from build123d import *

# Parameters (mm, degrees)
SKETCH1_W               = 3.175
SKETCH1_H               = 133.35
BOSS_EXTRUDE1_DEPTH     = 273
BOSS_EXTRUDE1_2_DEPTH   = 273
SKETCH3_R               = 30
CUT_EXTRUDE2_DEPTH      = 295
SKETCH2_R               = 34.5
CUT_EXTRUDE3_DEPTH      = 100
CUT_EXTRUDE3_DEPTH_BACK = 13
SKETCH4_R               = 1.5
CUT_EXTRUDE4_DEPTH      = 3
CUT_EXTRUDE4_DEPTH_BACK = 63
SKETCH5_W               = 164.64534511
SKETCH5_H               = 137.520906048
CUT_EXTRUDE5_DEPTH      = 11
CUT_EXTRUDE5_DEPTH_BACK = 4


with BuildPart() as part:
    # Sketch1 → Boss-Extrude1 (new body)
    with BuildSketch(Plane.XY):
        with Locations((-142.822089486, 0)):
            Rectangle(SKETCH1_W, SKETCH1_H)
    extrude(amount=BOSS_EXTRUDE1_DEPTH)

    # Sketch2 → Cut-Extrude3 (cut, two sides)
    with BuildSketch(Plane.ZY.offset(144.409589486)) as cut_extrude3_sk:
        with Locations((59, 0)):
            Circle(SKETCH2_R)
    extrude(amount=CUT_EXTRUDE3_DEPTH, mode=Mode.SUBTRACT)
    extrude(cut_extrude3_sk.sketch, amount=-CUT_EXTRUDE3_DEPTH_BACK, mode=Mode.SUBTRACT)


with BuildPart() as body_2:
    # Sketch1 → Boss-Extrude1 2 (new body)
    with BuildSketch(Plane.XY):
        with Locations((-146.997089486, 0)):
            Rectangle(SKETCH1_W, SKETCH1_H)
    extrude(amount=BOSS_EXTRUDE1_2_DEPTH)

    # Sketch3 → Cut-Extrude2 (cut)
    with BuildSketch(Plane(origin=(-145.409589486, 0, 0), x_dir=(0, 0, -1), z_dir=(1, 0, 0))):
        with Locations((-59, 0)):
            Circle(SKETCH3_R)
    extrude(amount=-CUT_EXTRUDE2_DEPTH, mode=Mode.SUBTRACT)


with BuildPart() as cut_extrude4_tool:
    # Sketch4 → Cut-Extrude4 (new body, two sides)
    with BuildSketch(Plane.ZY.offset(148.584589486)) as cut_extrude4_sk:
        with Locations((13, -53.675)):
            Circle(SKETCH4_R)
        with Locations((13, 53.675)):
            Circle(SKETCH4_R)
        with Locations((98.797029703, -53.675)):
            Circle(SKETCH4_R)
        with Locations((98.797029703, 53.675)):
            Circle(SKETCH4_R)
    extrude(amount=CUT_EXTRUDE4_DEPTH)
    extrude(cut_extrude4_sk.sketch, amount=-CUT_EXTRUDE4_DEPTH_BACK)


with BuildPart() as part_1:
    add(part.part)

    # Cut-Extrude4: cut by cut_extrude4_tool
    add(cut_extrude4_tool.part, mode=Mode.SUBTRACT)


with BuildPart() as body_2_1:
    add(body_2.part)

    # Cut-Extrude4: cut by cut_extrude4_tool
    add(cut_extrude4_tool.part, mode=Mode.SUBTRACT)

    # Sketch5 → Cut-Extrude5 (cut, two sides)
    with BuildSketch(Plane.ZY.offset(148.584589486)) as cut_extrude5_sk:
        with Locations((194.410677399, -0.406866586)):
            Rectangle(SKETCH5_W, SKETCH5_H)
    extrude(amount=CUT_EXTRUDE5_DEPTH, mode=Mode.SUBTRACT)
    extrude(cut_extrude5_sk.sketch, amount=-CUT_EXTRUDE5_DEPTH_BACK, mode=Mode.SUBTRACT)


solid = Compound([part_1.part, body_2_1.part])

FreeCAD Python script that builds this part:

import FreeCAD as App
import Part
import Sketcher
Q = App.Units.Quantity


def add_polygon(sketch, points):
    """Adds a closed chain of lines whose ends are joined by coincident constraints."""
    first, n = sketch.GeometryCount, len(points)
    for a, b in zip(points, points[1:] + points[:1]):
        sketch.addGeometry(Part.LineSegment(App.Vector(*a, 0), App.Vector(*b, 0)), False)
    for i in range(n):
        sketch.addConstraint(Sketcher.Constraint("Coincident", first + i, 2, first + (i + 1) % n, 1))

doc = App.newDocument("Part")
body = doc.addObject("PartDesign::Body", "Body")

# Sketch on XY plane
sketch1 = doc.addObject("Sketcher::SketchObject", "Sketch")
body.addObject(sketch1)
sketch1.AttachmentSupport = (doc.XY_Plane, [""])
sketch1.MapMode = "FlatFace"
add_polygon(sketch1, [(-144.4, 66.7), (-144.4, -66.7), (-141.2, -66.7), (-141.2, 66.7)])  # lines 0-3
sketch1.addConstraint(Sketcher.Constraint("Vertical", 0))
sketch1.addConstraint(Sketcher.Constraint("Horizontal", 1))
sketch1.addConstraint(Sketcher.Constraint("Vertical", 2))
sketch1.addConstraint(Sketcher.Constraint("Horizontal", 3))
sketch1.addConstraint(Sketcher.Constraint("DistanceY", 0, 2, 0, 1, Q("133.35 mm")))
sketch1.addConstraint(Sketcher.Constraint("DistanceX", 1, 1, 1, 2, Q("3.175 mm")))
sketch1.addConstraint(Sketcher.Constraint("DistanceY", 0, 2, -1, 1, Q("66.675 mm")))
sketch1.addConstraint(Sketcher.Constraint("DistanceX", 0, 2, -1, 1, Q("144.409589 mm")))
pad1 = doc.addObject("PartDesign::Pad", "Pad")
body.addObject(pad1)
pad1.Profile = sketch1
pad1.Length = 273

# Sketch on YZ plane
sketch2 = doc.addObject("Sketcher::SketchObject", "Sketch001")
body.addObject(sketch2)
sketch2.AttachmentSupport = (doc.YZ_Plane, [""])
sketch2.MapMode = "FlatFace"
sketch2.AttachmentOffset = App.Placement(App.Vector(0, 0, -144.409589), App.Rotation())
sketch2.addGeometry(Part.Circle(App.Vector(0, 59, 0), App.Vector(0, 0, 1), 34), False)
sketch2.addConstraint(Sketcher.Constraint("PointOnObject", 0, 3, -2))
sketch2.addConstraint(Sketcher.Constraint("Diameter", 0, Q("69 mm")))
sketch2.addConstraint(Sketcher.Constraint("DistanceY", -1, 1, 0, 3, Q("59 mm")))
pocket1 = doc.addObject("PartDesign::Pocket", "Pocket")
body.addObject(pocket1)
pocket1.Profile = sketch2
pocket1.Type = "ThroughAll"
pocket1.Midplane = True
body2 = doc.addObject("PartDesign::Body", "Body001")

# Sketch on XY plane
sketch3 = doc.addObject("Sketcher::SketchObject", "Sketch002")
body2.addObject(sketch3)
sketch3.AttachmentSupport = (doc.getObject("XY_Plane001"), [""])
sketch3.MapMode = "FlatFace"
add_polygon(sketch3, [(-148.6, 66.7), (-148.6, -66.7), (-145.4, -66.7), (-145.4, 66.7)])  # lines 0-3
sketch3.addConstraint(Sketcher.Constraint("Vertical", 0))
sketch3.addConstraint(Sketcher.Constraint("Horizontal", 1))
sketch3.addConstraint(Sketcher.Constraint("Vertical", 2))
sketch3.addConstraint(Sketcher.Constraint("Horizontal", 3))
sketch3.addConstraint(Sketcher.Constraint("DistanceY", 0, 2, 0, 1, Q("133.35 mm")))
sketch3.addConstraint(Sketcher.Constraint("DistanceX", 1, 1, 1, 2, Q("3.175 mm")))
sketch3.addConstraint(Sketcher.Constraint("DistanceY", 0, 2, -1, 1, Q("66.675 mm")))
sketch3.addConstraint(Sketcher.Constraint("DistanceX", 0, 2, -1, 1, Q("148.584589 mm")))
pad2 = doc.addObject("PartDesign::Pad", "Pad001")
body2.addObject(pad2)
pad2.Profile = sketch3
pad2.Length = 273

# Sketch on YZ plane
sketch4 = doc.addObject("Sketcher::SketchObject", "Sketch003")
body2.addObject(sketch4)
sketch4.AttachmentSupport = (doc.getObject("YZ_Plane001"), [""])
sketch4.MapMode = "FlatFace"
sketch4.AttachmentOffset = App.Placement(App.Vector(0, 0, -145.409589), App.Rotation())
sketch4.addGeometry(Part.Circle(App.Vector(0, 59, 0), App.Vector(0, 0, 1), 30), False)
sketch4.addConstraint(Sketcher.Constraint("PointOnObject", 0, 3, -2))
sketch4.addConstraint(Sketcher.Constraint("Diameter", 0, Q("60 mm")))
sketch4.addConstraint(Sketcher.Constraint("DistanceY", -1, 1, 0, 3, Q("59 mm")))
pocket2 = doc.addObject("PartDesign::Pocket", "Pocket001")
body2.addObject(pocket2)
pocket2.Profile = sketch4
pocket2.Length = 295
body3 = doc.addObject("PartDesign::Body", "Body002")
body3.AllowCompound = True

# Sketch on YZ plane
sketch5 = doc.addObject("Sketcher::SketchObject", "Sketch004")
body3.addObject(sketch5)
sketch5.AttachmentSupport = (doc.getObject("YZ_Plane002"), [""])
sketch5.MapMode = "FlatFace"
sketch5.AttachmentOffset = App.Placement(App.Vector(0, 0, -148.584589), App.Rotation())
sketch5.addGeometry(Part.Circle(App.Vector(-53.7, 13, 0), App.Vector(0, 0, 1), 1.5), False)
sketch5.addGeometry(Part.Circle(App.Vector(53.7, 13, 0), App.Vector(0, 0, 1), 1.5), False)
sketch5.addGeometry(Part.Circle(App.Vector(-53.7, 98.8, 0), App.Vector(0, 0, 1), 1.5), False)
sketch5.addGeometry(Part.Circle(App.Vector(53.7, 98.8, 0), App.Vector(0, 0, 1), 1.5), False)
sketch5.addConstraint(Sketcher.Constraint("Equal", 0, 1))
sketch5.addConstraint(Sketcher.Constraint("Equal", 1, 2))
sketch5.addConstraint(Sketcher.Constraint("Equal", 2, 3))
sketch5.addConstraint(Sketcher.Constraint("Symmetric", 0, 3, 1, 3, -2))
sketch5.addConstraint(Sketcher.Constraint("Symmetric", 2, 3, 3, 3, -2))
sketch5.addConstraint(Sketcher.Constraint("Vertical", 0, 3, 2, 3))
sketch5.addConstraint(Sketcher.Constraint("Diameter", 0, Q("3 mm")))
sketch5.addConstraint(Sketcher.Constraint("DistanceY", -1, 1, 0, 3, Q("13 mm")))
sketch5.addConstraint(Sketcher.Constraint("DistanceX", 0, 3, 1, 3, Q("107.35 mm")))
sketch5.addConstraint(Sketcher.Constraint("DistanceY", -1, 1, 2, 3, Q("98.79703 mm")))
pad3 = doc.addObject("PartDesign::Pad", "Pad002")
body3.addObject(pad3)
pad3.Profile = sketch5
pad3.Type = "TwoLengths"
pad3.Length = 3
pad3.Length2 = 63
pad3.Reversed = True
doc.recompute()

body4 = doc.addObject("PartDesign::Body", "Body003")
body4.BaseFeature = body3
boolean = doc.addObject("PartDesign::Boolean", "Boolean")
body.addObject(boolean)
boolean.Type = "Cut"
boolean.addObjects([body4])
doc.recompute()

boolean2 = doc.addObject("PartDesign::Boolean", "Boolean001")
body2.addObject(boolean2)
boolean2.Type = "Cut"
boolean2.addObjects([body3])

# Sketch on YZ plane
sketch6 = doc.addObject("Sketcher::SketchObject", "Sketch005")
body2.addObject(sketch6)
sketch6.AttachmentSupport = (doc.getObject("YZ_Plane001"), [""])
sketch6.MapMode = "FlatFace"
sketch6.AttachmentOffset = App.Placement(App.Vector(0, 0, -148.584589), App.Rotation())
add_polygon(sketch6, [(68, 112), (-69, 112), (-69, 277), (68, 277)])  # lines 0-3
sketch6.addConstraint(Sketcher.Constraint("Horizontal", 0))
sketch6.addConstraint(Sketcher.Constraint("Vertical", 1))
sketch6.addConstraint(Sketcher.Constraint("Horizontal", 2))
sketch6.addConstraint(Sketcher.Constraint("Vertical", 3))
sketch6.addConstraint(Sketcher.Constraint("DistanceX", 0, 2, 0, 1, Q("137.520906 mm")))
sketch6.addConstraint(Sketcher.Constraint("DistanceY", 1, 1, 1, 2, Q("164.645345 mm")))
sketch6.addConstraint(Sketcher.Constraint("DistanceX", 0, 2, -1, 1, Q("69.16732 mm")))
sketch6.addConstraint(Sketcher.Constraint("DistanceY", -1, 1, 1, 2, Q("276.73335 mm")))
pocket3 = doc.addObject("PartDesign::Pocket", "Pocket002")
body2.addObject(pocket3)
pocket3.Profile = sketch6
pocket3.Type = "ThroughAll"
pocket3.Midplane = True

doc.recompute()
